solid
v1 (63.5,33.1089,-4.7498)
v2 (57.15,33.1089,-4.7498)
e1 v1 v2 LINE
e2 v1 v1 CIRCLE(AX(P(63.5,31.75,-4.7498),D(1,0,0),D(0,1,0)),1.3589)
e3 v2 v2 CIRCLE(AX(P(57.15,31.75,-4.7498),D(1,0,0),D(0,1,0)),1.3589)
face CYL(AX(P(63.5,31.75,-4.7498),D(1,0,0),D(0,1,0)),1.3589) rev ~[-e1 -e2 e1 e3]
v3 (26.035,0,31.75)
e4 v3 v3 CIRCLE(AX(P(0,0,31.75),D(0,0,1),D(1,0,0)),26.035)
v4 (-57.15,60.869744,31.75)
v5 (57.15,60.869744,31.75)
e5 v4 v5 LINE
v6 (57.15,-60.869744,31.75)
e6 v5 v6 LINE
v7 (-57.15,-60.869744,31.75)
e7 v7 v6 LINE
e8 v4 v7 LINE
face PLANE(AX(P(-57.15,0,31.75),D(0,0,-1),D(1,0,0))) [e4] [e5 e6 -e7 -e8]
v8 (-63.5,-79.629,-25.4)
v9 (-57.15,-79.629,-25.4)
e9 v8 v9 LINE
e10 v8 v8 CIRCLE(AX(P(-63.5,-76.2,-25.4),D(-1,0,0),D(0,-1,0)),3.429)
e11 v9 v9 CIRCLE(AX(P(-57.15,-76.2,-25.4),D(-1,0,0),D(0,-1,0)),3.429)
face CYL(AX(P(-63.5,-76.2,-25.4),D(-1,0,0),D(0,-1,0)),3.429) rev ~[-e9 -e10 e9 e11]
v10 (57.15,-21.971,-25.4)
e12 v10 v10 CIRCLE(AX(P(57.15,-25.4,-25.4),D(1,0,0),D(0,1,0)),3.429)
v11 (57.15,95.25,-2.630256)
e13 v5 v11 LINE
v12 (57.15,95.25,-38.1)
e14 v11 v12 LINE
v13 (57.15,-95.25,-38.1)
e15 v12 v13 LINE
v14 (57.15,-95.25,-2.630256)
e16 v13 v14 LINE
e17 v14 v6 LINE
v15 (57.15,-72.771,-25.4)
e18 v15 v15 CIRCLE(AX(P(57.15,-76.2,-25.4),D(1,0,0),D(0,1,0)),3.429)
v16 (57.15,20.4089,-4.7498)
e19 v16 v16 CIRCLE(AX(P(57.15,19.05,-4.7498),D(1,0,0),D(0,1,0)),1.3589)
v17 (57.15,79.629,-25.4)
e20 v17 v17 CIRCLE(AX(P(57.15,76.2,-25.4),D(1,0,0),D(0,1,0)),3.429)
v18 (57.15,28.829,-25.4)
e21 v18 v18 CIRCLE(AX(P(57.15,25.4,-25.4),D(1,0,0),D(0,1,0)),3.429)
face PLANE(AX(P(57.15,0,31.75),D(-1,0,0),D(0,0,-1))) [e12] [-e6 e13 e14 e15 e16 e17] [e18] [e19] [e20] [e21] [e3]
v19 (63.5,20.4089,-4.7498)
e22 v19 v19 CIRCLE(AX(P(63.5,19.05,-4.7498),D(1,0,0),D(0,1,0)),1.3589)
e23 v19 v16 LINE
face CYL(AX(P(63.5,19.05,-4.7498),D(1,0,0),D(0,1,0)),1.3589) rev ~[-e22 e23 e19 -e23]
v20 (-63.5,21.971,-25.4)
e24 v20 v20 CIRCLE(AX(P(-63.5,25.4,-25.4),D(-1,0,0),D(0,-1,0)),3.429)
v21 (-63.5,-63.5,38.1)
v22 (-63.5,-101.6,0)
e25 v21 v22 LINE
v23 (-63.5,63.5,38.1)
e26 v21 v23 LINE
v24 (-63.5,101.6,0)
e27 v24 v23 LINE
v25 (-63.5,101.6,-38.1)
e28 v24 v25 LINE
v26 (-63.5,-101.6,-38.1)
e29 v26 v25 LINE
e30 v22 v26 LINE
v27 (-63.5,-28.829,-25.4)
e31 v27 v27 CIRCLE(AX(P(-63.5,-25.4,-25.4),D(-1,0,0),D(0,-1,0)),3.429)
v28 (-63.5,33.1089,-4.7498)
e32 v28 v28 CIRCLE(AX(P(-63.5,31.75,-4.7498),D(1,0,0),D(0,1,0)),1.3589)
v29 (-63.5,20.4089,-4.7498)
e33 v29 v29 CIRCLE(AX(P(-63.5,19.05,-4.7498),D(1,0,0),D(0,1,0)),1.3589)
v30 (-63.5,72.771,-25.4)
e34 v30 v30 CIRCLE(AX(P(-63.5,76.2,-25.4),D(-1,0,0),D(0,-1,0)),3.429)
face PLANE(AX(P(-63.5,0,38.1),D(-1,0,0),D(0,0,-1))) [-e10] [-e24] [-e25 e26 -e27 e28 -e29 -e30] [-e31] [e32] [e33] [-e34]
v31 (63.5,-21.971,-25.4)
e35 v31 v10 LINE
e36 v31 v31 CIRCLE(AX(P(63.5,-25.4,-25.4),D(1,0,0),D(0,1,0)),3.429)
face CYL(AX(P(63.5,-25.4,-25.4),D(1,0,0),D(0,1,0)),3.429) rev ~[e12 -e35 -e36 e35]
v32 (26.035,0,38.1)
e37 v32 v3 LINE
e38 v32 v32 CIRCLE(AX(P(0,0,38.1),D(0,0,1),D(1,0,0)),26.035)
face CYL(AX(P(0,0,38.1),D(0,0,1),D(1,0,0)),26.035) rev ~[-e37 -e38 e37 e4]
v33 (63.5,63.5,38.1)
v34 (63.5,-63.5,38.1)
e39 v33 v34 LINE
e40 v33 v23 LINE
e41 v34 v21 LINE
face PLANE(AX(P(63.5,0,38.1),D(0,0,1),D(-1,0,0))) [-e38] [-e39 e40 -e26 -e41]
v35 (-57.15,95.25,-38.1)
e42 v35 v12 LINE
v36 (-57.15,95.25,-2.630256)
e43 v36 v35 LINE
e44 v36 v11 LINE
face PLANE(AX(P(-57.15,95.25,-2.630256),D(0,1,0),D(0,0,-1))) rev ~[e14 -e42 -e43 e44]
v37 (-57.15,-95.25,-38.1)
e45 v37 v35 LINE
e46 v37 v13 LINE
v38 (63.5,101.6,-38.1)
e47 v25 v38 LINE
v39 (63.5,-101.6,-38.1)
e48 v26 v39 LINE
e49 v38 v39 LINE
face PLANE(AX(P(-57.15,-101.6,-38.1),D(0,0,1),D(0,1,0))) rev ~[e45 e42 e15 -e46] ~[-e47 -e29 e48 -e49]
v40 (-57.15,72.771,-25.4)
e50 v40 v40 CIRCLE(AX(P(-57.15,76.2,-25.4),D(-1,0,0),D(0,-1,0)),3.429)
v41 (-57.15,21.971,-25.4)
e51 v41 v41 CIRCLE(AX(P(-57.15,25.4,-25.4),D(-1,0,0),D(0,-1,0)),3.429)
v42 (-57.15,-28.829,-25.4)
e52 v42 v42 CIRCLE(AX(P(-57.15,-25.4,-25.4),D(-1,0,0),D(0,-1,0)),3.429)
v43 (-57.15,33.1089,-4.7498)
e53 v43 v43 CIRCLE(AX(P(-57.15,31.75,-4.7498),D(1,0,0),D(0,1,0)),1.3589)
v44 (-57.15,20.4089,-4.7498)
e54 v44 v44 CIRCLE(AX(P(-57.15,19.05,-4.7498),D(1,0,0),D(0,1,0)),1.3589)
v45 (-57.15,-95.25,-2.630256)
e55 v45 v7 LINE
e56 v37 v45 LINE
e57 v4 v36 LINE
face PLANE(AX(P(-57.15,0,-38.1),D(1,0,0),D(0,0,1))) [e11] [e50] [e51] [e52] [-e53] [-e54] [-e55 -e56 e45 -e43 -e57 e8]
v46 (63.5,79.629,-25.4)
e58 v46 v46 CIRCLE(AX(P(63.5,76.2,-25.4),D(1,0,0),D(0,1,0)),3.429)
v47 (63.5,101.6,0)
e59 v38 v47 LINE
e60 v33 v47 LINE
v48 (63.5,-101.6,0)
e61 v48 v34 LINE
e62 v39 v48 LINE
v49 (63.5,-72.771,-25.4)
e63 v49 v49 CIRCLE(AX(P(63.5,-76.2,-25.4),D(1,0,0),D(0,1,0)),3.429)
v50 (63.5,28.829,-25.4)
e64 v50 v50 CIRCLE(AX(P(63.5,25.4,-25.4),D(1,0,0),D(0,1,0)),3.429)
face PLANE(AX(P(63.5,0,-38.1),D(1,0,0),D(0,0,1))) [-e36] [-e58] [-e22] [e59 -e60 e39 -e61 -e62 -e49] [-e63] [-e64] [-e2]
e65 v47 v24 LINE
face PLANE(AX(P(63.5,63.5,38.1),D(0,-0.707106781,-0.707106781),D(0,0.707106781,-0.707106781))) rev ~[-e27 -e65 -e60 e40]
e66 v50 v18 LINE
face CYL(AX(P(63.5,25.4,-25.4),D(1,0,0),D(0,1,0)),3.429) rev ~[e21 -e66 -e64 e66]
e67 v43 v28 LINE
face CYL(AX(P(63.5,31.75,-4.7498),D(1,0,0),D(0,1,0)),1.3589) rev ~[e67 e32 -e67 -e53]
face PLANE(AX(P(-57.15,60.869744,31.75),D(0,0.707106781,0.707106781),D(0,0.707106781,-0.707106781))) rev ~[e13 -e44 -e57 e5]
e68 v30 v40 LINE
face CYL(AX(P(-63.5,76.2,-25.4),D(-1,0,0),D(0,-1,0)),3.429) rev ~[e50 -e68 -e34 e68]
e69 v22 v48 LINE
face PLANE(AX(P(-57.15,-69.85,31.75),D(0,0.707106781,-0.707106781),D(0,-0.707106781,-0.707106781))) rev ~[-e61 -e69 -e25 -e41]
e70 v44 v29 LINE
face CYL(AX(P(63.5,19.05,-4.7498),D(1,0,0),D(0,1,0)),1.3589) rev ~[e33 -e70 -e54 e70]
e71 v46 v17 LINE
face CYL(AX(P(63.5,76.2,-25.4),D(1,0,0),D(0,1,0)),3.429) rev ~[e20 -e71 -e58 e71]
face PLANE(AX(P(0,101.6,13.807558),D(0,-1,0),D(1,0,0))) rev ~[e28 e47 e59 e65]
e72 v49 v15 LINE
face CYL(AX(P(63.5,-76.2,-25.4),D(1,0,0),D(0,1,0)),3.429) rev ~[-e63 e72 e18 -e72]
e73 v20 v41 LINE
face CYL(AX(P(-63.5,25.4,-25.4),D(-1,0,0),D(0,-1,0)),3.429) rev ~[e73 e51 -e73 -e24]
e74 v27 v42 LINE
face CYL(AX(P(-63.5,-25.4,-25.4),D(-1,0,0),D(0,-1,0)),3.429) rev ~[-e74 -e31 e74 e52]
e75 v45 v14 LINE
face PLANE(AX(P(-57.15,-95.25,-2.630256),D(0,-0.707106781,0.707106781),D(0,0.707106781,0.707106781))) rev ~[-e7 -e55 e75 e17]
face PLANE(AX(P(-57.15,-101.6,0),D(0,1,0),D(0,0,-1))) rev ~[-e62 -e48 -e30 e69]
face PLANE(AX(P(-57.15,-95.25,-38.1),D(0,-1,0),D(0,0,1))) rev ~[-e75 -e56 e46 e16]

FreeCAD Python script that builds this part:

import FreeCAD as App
import Part
import Sketcher

V = App.Vector
Q = App.Units.Quantity


def add_polygon(sketch, points):
    """Adds a closed chain of lines whose ends are joined by coincident constraints."""
    first, n = sketch.GeometryCount, len(points)
    for a, b in zip(points, points[1:] + points[:1]):
        sketch.addGeometry(Part.LineSegment(App.Vector(*a, 0), App.Vector(*b, 0)), False)
    for i in range(n):
        sketch.addConstraint(Sketcher.Constraint("Coincident", first + i, 2, first + (i + 1) % n, 1))

doc = App.newDocument("Part")
body = doc.addObject("PartDesign::Body", "Body")

# Sketch on XZ plane
sketch1 = body.newObject("Sketcher::SketchObject", "Sketch")
sketch1.AttachmentSupport = (doc.getObject("XZ_Plane"), [""])
sketch1.MapMode = "FlatFace"
add_polygon(sketch1, [(-57, -38), (-57, 32), (57, 32), (57, -38), (64, -38), (64, 38), (-64, 38), (-64, -38)])  # lines 0-7
sketch1.addConstraint(Sketcher.Constraint("Vertical", 0))
sketch1.addConstraint(Sketcher.Constraint("Horizontal", 1))
sketch1.addConstraint(Sketcher.Constraint("Vertical", 2))
sketch1.addConstraint(Sketcher.Constraint("Horizontal", 3))
sketch1.addConstraint(Sketcher.Constraint("Vertical", 4))
sketch1.addConstraint(Sketcher.Constraint("Horizontal", 5))
sketch1.addConstraint(Sketcher.Constraint("Vertical", 6))
sketch1.addConstraint(Sketcher.Constraint("Horizontal", 7))
sketch1.addConstraint(Sketcher.Constraint("Symmetric", 3, 2, 5, 2, -1, 1))
sketch1.addConstraint(Sketcher.Constraint("Symmetric", 2, 2, 7, 2, -2))
sketch1.addConstraint(Sketcher.Constraint("DistanceX", 5, 2, 5, 1, Q("5 in")))
sketch1.addConstraint(Sketcher.Constraint("DistanceY", 4, 1, 4, 2, Q("3 in")))
sketch1.addConstraint(Sketcher.Constraint("DistanceX", 1, 1, 1, 2, Q("4.5 in")))
sketch1.addConstraint(Sketcher.Constraint("DistanceY", 0, 1, 0, 2, Q("2.75 in")))
pad1 = body.newObject("PartDesign::Pad", "Pad")
pad1.Profile = sketch1
pad1.Length = Q("8 in")
pad1.Midplane = True

# Sketch on YZ plane
sketch2 = body.newObject("Sketcher::SketchObject", "Sketch001")
sketch2.AttachmentSupport = (doc.getObject("YZ_Plane"), [""])
sketch2.MapMode = "FlatFace"
sketch2.AttachmentOffset = App.Placement(V(0, 0, -2.5 * 25.4), App.Rotation())
sketch2.addGeometry(Part.Circle(V(76.2, -25.4, 0), V(0, 0, 1), 3.4), False)
sketch2.addGeometry(Part.Circle(V(25.4, -25.4, 0), V(0, 0, 1), 3.4), False)
sketch2.addGeometry(Part.Circle(V(-25.4, -25.4, 0), V(0, 0, 1), 3.4), False)
sketch2.addGeometry(Part.Circle(V(-76.2, -25.4, 0), V(0, 0, 1), 3.4), False)
sketch2.addConstraint(Sketcher.Constraint("Equal", 0, 1))
sketch2.addConstraint(Sketcher.Constraint("Equal", 1, 2))
sketch2.addConstraint(Sketcher.Constraint("Equal", 2, 3))
sketch2.addConstraint(Sketcher.Constraint("Symmetric", 1, 3, 2, 3, -2))
sketch2.addConstraint(Sketcher.Constraint("Symmetric", 0, 3, 3, 3, -2))
sketch2.addConstraint(Sketcher.Constraint("Horizontal", 0, 3, 1, 3))
sketch2.addConstraint(Sketcher.Constraint("Diameter", 0, Q("0.27 in")))
sketch2.addConstraint(Sketcher.Constraint("DistanceX", -1, 1, 0, 3, Q("3 in")))
sketch2.addConstraint(Sketcher.Constraint("DistanceY", 0, 3, -1, 1, Q("1 in")))
sketch2.addConstraint(Sketcher.Constraint("DistanceX", -1, 1, 1, 3, Q("1 in")))
pocket1 = body.newObject("PartDesign::Pocket", "Pocket")
pocket1.Profile = sketch2
pocket1.Length = Q("0.25 in")
pocket1.Reversed = True

# Sketch on YZ plane
sketch3 = body.newObject("Sketcher::SketchObject", "Sketch002")
sketch3.AttachmentSupport = (doc.getObject("YZ_Plane"), [""])
sketch3.MapMode = "FlatFace"
sketch3.AttachmentOffset = App.Placement(V(0, 0, 2.5 * 25.4), App.Rotation())
sketch3.addGeometry(Part.Circle(V(-76.2, -25.4, 0), V(0, 0, 1), 3.4), False)
sketch3.addGeometry(Part.Circle(V(-25.4, -25.4, 0), V(0, 0, 1), 3.4), False)
sketch3.addGeometry(Part.Circle(V(25.4, -25.4, 0), V(0, 0, 1), 3.4), False)
sketch3.addGeometry(Part.Circle(V(76.2, -25.4, 0), V(0, 0, 1), 3.4), False)
sketch3.addConstraint(Sketcher.Constraint("Equal", 0, 1))
sketch3.addConstraint(Sketcher.Constraint("Equal", 1, 2))
sketch3.addConstraint(Sketcher.Constraint("Equal", 2, 3))
sketch3.addConstraint(Sketcher.Constraint("Symmetric", 1, 3, 2, 3, -2))
sketch3.addConstraint(Sketcher.Constraint("Symmetric", 0, 3, 3, 3, -2))
sketch3.addConstraint(Sketcher.Constraint("Horizontal", 0, 3, 1, 3))
sketch3.addConstraint(Sketcher.Constraint("Diameter", 0, Q("0.27 in")))
sketch3.addConstraint(Sketcher.Constraint("DistanceX", 0, 3, -1, 1, Q("3 in")))
sketch3.addConstraint(Sketcher.Constraint("DistanceY", 0, 3, -1, 1, Q("1 in")))
sketch3.addConstraint(Sketcher.Constraint("DistanceX", 1, 3, -1, 1, Q("1 in")))
pocket2 = body.newObject("PartDesign::Pocket", "Pocket001")
pocket2.Profile = sketch3
pocket2.Length = Q("0.25 in")

# Sketch on XY plane
sketch4 = body.newObject("Sketcher::SketchObject", "Sketch003")
sketch4.AttachmentSupport = (doc.getObject("XY_Plane"), [""])
sketch4.MapMode = "FlatFace"
sketch4.AttachmentOffset = App.Placement(V(0, 0, 1.5 * 25.4), App.Rotation())
sketch4.addGeometry(Part.Circle(V(0, 0, 0), V(0, 0, 1), 26), False)
sketch4.addConstraint(Sketcher.Constraint("Coincident", 0, 3, -1, 1))
sketch4.addConstraint(Sketcher.Constraint("Diameter", 0, Q("2.05 in")))
pocket3 = body.newObject("PartDesign::Pocket", "Pocket002")
pocket3.Profile = sketch4
pocket3.Length = Q("0.25 in")

# Sketch on YZ plane
sketch5 = body.newObject("Sketcher::SketchObject", "Sketch004")
sketch5.AttachmentSupport = (doc.getObject("YZ_Plane"), [""])
sketch5.MapMode = "FlatFace"
sketch5.AttachmentOffset = App.Placement(V(0, 0, 2.5 * 25.4), App.Rotation())
sketch5.addGeometry(Part.Circle(V(19.1, -4.7, 0), V(0, 0, 1), 1.4), False)
sketch5.addGeometry(Part.Circle(V(31.8, -4.7, 0), V(0, 0, 1), 1.4), False)
sketch5.addConstraint(Sketcher.Constraint("Equal", 0, 1))
sketch5.addConstraint(Sketcher.Constraint("Horizontal", 0, 3, 1, 3))
sketch5.addConstraint(Sketcher.Constraint("Diameter", 0, Q("0.107 in")))
sketch5.addConstraint(Sketcher.Constraint("DistanceX", 0, 3, 1, 3, Q("0.5 in")))
sketch5.addConstraint(Sketcher.Constraint("DistanceX", -1, 1, 0, 3, Q("0.75 in")))
sketch5.addConstraint(Sketcher.Constraint("DistanceY", 0, 3, -1, 1, Q("0.187 in")))
pocket4 = body.newObject("PartDesign::Pocket", "Pocket003")
pocket4.Profile = sketch5
pocket4.Type = "ThroughAll"

# Sketch on YZ plane
sketch6 = body.newObject("Sketcher::SketchObject", "Sketch005")
sketch6.AttachmentSupport = (doc.getObject("YZ_Plane"), [""])
sketch6.MapMode = "FlatFace"
sketch6.AttachmentOffset = App.Placement(V(0, 0, 2.5 * 25.4), App.Rotation())
add_polygon(sketch6, [(-64, 38), (-102, 38), (-102, 0)])  # lines 0-2
add_polygon(sketch6, [(64, 38), (102, 0), (102, 38)])  # lines 3-5
sketch6.addConstraint(Sketcher.Constraint("Horizontal", 0))
sketch6.addConstraint(Sketcher.Constraint("Vertical", 1))
sketch6.addConstraint(Sketcher.Constraint("Vertical", 4))
sketch6.addConstraint(Sketcher.Constraint("Horizontal", 5))
sketch6.addConstraint(Sketcher.Constraint("Symmetric", 1, 2, 3, 2, -1, 1))
sketch6.addConstraint(Sketcher.Constraint("Symmetric", 2, 2, 5, 2, -2))
sketch6.addConstraint(Sketcher.Constraint("PointOnObject", 1, 2, -1))
sketch6.addConstraint(Sketcher.Constraint("Perpendicular", 2, 3))
sketch6.addConstraint(Sketcher.Constraint("DistanceX", 0, 2, 0, 1, Q("1.5 in")))
sketch6.addConstraint(Sketcher.Constraint("DistanceX", 0, 2, -1, 1, Q("4 in")))
pocket5 = body.newObject("PartDesign::Pocket", "Pocket004")
pocket5.Profile = sketch6
pocket5.Type = "ThroughAll"

# Sketch on YZ plane
sketch7 = body.newObject("Sketcher::SketchObject", "Sketch006")
sketch7.AttachmentSupport = (doc.getObject("YZ_Plane"), [""])
sketch7.MapMode = "FlatFace"
sketch7.AttachmentOffset = App.Placement(V(0, 0, -2.25 * 25.4), App.Rotation())
add_polygon(sketch7, [(-70, 32), (-102, 0), (-102, -38), (-95, -38), (-95, -3), (-61, 32)])  # lines 0-5
add_polygon(sketch7, [(95, -3), (95, -38), (102, -38), (102, 0), (70, 32), (61, 32)])  # lines 6-11
sketch7.addConstraint(Sketcher.Constraint("Vertical", 1))
sketch7.addConstraint(Sketcher.Constraint("Horizontal", 2))
sketch7.addConstraint(Sketcher.Constraint("Vertical", 3))
sketch7.addConstraint(Sketcher.Constraint("Horizontal", 5))
sketch7.addConstraint(Sketcher.Constraint("Vertical", 6))
sketch7.addConstraint(Sketcher.Constraint("Horizontal", 7))
sketch7.addConstraint(Sketcher.Constraint("Vertical", 8))
sketch7.addConstraint(Sketcher.Constraint("Horizontal", 10))
sketch7.addConstraint(Sketcher.Constraint("Symmetric", 0, 2, 8, 2, -1, 1))
sketch7.addConstraint(Sketcher.Constraint("Symmetric", 2, 2, 6, 2, -2))
sketch7.addConstraint(Sketcher.Constraint("Symmetric", 5, 2, 9, 2, -2))
sketch7.addConstraint(Sketcher.Constraint("PointOnObject", 0, 2, -1))
sketch7.addConstraint(Sketcher.Constraint("Parallel", 0, 4))
sketch7.addConstraint(Sketcher.Constraint("Perpendicular", 4, 9))
sketch7.addConstraint(Sketcher.Constraint("Parallel", 9, 11))
sketch7.addConstraint(Sketcher.Constraint("Horizontal", 3, 2, 11, 2))
sketch7.addConstraint(Sketcher.Constraint("DistanceY", 1, 2, 1, 1, Q("1.5 in")))
sketch7.addConstraint(Sketcher.Constraint("DistanceX", 0, 2, -1, 1, Q("4 in")))
sketch7.addConstraint(Sketcher.Constraint("DistanceX", 3, 2, 5, 2, Q("1 in")))
sketch7.addConstraint(Sketcher.Constraint("DistanceX", 2, 1, 2, 2, Q("0.25 in")))
sketch7.addConstraint(Sketcher.Constraint("DistanceX", 5, 2, 5, 1, Q("8.980256 mm")))
pad2 = body.newObject("PartDesign::Pad", "Pad001")
pad2.Profile = sketch7
pad2.Type = "UpToLast"

doc.recompute()
